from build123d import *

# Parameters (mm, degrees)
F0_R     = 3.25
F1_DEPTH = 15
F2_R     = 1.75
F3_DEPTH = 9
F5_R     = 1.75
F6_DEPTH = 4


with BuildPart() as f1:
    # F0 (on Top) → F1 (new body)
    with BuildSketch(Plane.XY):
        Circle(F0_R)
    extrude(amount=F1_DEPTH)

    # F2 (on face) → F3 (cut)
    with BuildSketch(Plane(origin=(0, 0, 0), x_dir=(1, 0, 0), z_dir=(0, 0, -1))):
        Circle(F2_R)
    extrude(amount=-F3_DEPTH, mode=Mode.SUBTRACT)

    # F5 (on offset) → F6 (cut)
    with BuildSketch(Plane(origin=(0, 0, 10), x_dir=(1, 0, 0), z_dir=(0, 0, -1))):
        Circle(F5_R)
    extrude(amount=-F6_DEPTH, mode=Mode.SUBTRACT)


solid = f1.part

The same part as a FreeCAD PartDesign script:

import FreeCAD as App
import Part
import Sketcher
from FreeCAD import Vector

doc = App.newDocument("Part")
body = doc.addObject("PartDesign::Body", "Body")

# Sketch on XY plane
sketch1 = doc.addObject("Sketcher::SketchObject", "Sketch")
body.addObject(sketch1)
sketch1.AttachmentSupport = (doc.XY_Plane, [""])
sketch1.MapMode = "FlatFace"
sketch1.addGeometry(Part.Circle(Vector(0, 0, 0), Vector(0, 0, 1), 3.25), False)
sketch1.addConstraint([
    Sketcher.Constraint("Coincident", 0, 3, -1, 1),
    Sketcher.Constraint("Diameter", 0, 6.5),
])
pad1 = doc.addObject("PartDesign::Pad", "Pad")
body.addObject(pad1)
pad1.Profile = sketch1
pad1.Length = 15

# Sketch on XY plane
sketch2 = doc.addObject("Sketcher::SketchObject", "Sketch001")
body.addObject(sketch2)
sketch2.AttachmentSupport = (doc.XY_Plane, [""])
sketch2.MapMode = "FlatFace"
sketch2.addGeometry(Part.Circle(Vector(0, 0, 0), Vector(0, 0, 1), 1.75), False)
sketch2.addConstraint([
    Sketcher.Constraint("Coincident", 0, 3, -1, 1),
    Sketcher.Constraint("Diameter", 0, 3.5),
])
pocket1 = doc.addObject("PartDesign::Pocket", "Pocket")
body.addObject(pocket1)
pocket1.Profile = sketch2
pocket1.Length = 9
pocket1.Reversed = True

# Sketch on XY plane
sketch3 = doc.addObject("Sketcher::SketchObject", "Sketch002")
body.addObject(sketch3)
sketch3.AttachmentSupport = (doc.XY_Plane, [""])
sketch3.MapMode = "FlatFace"
sketch3.AttachmentOffset = App.Placement(Vector(0, 0, 10), App.Rotation())
sketch3.addGeometry(Part.Circle(Vector(0, 0, 0), Vector(0, 0, 1), 1.75), False)
sketch3.addConstraint([
    Sketcher.Constraint("Coincident", 0, 3, -1, 1),
    Sketcher.Constraint("Diameter", 0, 3.5),
])
pocket2 = doc.addObject("PartDesign::Pocket", "Pocket001")
body.addObject(pocket2)
pocket2.Profile = sketch3
pocket2.Length = 4
pocket2.Reversed = True

doc.recompute()
